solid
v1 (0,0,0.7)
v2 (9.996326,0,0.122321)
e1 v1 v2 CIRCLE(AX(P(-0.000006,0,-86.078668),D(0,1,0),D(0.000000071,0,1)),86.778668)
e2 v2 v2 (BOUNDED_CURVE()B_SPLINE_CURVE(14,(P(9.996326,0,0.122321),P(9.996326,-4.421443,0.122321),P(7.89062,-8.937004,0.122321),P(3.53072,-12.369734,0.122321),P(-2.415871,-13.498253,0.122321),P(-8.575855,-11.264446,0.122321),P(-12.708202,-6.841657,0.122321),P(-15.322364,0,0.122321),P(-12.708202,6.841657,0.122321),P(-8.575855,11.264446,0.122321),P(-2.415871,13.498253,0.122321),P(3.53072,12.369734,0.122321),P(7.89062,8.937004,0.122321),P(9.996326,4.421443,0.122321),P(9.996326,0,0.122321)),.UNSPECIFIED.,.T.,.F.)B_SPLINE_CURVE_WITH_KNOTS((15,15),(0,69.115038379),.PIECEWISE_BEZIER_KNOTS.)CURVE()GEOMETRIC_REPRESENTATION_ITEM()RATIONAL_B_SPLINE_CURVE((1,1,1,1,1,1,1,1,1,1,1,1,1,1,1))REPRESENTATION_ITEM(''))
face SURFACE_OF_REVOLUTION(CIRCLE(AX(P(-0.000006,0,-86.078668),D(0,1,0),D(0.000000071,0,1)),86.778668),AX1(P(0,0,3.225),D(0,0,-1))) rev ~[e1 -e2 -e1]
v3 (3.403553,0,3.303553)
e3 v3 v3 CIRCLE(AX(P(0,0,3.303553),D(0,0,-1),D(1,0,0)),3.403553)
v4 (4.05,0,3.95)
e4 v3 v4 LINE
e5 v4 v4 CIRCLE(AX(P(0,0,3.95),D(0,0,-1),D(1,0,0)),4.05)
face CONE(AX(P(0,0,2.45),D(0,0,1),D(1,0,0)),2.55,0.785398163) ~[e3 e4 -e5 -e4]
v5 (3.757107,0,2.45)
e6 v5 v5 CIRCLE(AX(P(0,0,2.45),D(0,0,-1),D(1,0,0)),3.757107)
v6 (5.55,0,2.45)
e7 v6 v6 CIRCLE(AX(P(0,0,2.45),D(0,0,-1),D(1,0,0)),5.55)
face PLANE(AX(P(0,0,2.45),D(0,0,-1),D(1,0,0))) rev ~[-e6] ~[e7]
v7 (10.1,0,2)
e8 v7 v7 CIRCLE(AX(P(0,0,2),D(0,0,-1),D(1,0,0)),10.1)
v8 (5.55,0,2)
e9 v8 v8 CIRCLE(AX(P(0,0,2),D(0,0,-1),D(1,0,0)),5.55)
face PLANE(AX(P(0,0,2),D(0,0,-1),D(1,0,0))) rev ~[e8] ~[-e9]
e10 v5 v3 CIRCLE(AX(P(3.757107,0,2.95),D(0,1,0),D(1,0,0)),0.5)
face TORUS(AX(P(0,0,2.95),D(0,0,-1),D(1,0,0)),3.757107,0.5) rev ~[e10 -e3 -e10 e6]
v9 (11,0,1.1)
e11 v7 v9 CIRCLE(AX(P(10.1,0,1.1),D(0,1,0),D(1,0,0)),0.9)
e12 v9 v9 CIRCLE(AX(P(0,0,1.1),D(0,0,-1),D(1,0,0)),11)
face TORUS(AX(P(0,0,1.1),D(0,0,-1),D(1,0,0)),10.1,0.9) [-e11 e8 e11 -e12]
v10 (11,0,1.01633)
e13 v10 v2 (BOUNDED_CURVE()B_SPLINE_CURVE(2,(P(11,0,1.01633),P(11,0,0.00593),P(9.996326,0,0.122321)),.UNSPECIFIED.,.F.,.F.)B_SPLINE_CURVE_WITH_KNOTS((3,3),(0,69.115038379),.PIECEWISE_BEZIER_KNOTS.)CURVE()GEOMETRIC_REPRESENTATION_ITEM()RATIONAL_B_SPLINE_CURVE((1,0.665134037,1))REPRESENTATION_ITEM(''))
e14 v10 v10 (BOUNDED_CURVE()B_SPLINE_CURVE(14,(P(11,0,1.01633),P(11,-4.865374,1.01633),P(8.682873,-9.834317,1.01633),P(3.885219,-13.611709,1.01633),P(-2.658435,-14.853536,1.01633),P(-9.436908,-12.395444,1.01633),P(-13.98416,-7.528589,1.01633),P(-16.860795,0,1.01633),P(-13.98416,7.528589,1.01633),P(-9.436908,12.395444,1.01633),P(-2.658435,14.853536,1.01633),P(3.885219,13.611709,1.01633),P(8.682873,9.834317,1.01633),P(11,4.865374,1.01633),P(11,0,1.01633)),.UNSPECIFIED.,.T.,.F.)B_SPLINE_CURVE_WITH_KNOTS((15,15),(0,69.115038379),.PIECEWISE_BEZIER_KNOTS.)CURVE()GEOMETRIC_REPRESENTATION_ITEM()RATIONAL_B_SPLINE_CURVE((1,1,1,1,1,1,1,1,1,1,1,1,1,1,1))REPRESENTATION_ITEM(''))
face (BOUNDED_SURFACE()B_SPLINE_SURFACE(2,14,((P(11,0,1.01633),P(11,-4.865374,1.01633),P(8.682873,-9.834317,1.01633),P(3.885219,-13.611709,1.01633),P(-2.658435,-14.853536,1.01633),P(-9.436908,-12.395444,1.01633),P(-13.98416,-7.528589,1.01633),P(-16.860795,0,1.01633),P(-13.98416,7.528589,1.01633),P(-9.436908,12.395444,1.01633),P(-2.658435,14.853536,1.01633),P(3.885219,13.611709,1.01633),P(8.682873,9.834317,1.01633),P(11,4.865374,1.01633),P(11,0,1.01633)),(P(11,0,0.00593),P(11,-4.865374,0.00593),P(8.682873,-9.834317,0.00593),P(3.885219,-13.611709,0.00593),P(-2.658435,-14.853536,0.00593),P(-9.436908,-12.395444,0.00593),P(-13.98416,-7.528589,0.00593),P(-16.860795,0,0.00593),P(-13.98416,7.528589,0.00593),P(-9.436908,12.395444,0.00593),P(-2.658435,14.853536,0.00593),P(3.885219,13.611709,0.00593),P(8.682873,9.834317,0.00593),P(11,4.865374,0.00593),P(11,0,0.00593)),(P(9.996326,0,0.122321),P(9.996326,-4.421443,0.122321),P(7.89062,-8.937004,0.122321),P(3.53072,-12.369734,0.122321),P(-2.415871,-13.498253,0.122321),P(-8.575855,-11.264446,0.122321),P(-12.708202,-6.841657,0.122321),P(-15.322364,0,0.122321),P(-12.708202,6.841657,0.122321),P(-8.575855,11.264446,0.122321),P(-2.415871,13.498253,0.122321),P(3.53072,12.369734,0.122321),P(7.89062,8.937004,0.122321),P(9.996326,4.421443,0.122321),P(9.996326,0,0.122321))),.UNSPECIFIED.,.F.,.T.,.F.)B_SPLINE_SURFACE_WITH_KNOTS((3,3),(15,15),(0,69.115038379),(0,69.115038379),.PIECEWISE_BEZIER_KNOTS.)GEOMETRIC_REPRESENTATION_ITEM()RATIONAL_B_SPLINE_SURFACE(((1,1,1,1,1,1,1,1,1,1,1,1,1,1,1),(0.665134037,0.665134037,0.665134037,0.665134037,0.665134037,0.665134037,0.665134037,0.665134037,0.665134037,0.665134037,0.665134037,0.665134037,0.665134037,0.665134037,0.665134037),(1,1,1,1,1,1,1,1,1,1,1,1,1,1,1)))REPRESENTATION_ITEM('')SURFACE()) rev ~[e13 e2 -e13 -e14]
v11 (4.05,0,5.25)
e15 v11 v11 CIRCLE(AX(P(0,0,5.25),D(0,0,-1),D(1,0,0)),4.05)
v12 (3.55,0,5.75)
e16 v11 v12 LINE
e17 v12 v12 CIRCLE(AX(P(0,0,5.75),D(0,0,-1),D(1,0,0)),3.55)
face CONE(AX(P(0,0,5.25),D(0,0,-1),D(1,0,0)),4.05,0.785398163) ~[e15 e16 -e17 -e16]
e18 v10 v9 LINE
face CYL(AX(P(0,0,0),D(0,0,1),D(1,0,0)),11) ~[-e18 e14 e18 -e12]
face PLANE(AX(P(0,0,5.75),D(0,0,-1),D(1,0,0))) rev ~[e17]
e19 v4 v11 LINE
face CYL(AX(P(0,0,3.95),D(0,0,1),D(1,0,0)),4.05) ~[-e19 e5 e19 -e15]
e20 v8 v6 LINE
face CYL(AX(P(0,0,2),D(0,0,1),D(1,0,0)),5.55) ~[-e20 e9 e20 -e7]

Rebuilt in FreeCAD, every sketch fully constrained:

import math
import FreeCAD as App
import Part
import Sketcher
Q = App.Units.Quantity


def edges_at(feature, points):
    """Names of the edges that pass closest to the given points."""
    edges = feature.Shape.Edges
    near = lambda p: min(range(len(edges)), key=lambda i: edges[i].distToShape(Part.Vertex(*p))[0])
    return sorted({f"Edge{near(p) + 1}" for p in points})

doc = App.newDocument("Part")
body = doc.addObject("PartDesign::Body", "Body")

sketch1 = body.newObject("Sketcher::SketchObject", "Sketch")
sketch1.AttachmentSupport = (doc.getObject("XZ_Plane"), [""])
sketch1.MapMode = "FlatFace"
sketch1.addGeometry([
    Part.ArcOfCircle(Part.Circle(App.Vector(0, -86.08, 0), App.Vector(0, 0, 1), 86.78), math.radians(82.72), math.radians(90)),
    Part.LineSegment(App.Vector(11, 0, 0), App.Vector(11, 2, 0)),
    Part.LineSegment(App.Vector(11, 2, 0), App.Vector(5.55, 2, 0)),
    Part.LineSegment(App.Vector(5.55, 2, 0), App.Vector(5.55, 2.45, 0)),
    Part.LineSegment(App.Vector(5.55, 2.45, 0), App.Vector(2.55, 2.45, 0)),
    Part.LineSegment(App.Vector(2.55, 2.45, 0), App.Vector(4.05, 3.95, 0)),
    Part.LineSegment(App.Vector(4.05, 3.95, 0), App.Vector(4.05, 5.75, 0)),
    Part.LineSegment(App.Vector(4.05, 5.75, 0), App.Vector(0, 5.75, 0)),
    Part.LineSegment(App.Vector(0, 5.75, 0), App.Vector(0, 0.7, 0)),
], False)
sketch1.addConstraint([
    Sketcher.Constraint("Coincident", 0, 1, 1, 1),
    Sketcher.Constraint("Coincident", 1, 2, 2, 1),
    Sketcher.Constraint("Coincident", 2, 2, 3, 1),
    Sketcher.Constraint("Coincident", 3, 2, 4, 1),
    Sketcher.Constraint("Coincident", 4, 2, 5, 1),
    Sketcher.Constraint("Coincident", 5, 2, 6, 1),
    Sketcher.Constraint("Coincident", 6, 2, 7, 1),
    Sketcher.Constraint("Coincident", 7, 2, 8, 1),
    Sketcher.Constraint("Coincident", 8, 2, 0, 2),
    Sketcher.Constraint("Vertical", 1),
    Sketcher.Constraint("Horizontal", 2),
    Sketcher.Constraint("Vertical", 3),
    Sketcher.Constraint("Horizontal", 4),
    Sketcher.Constraint("Vertical", 6),
    Sketcher.Constraint("Horizontal", 7),
    Sketcher.Constraint("Vertical", 8),
    Sketcher.Constraint("PointOnObject", 0, 1, -1),
    Sketcher.Constraint("PointOnObject", 7, 2, -2),
    Sketcher.Constraint("DistanceX", 4, 2, 4, 1, Q("3 mm")),
    Sketcher.Constraint("DistanceY", 1, 1, 1, 2, Q("2 mm")),
    Sketcher.Constraint("Angle", 5, Q("45 deg")),
    Sketcher.Constraint("DistanceY", 6, 1, 6, 2, Q("1.8 mm")),
    Sketcher.Constraint("DistanceX", -1, 1, 0, 1, Q("11 mm")),
    Sketcher.Constraint("DistanceX", 2, 2, 2, 1, Q("5.45 mm")),
    Sketcher.Constraint("DistanceX", 7, 2, 7, 1, Q("4.05 mm")),
    Sketcher.Constraint("DistanceY", 3, 1, 3, 2, Q("0.45 mm")),
    Sketcher.Constraint("DistanceY", 8, 2, 8, 1, Q("5.05 mm")),
    Sketcher.Constraint("Radius", 0, Q("86.778668 mm")),
])
revolution = body.newObject("PartDesign::Revolution", "Revolution")
revolution.Profile = sketch1
revolution.ReferenceAxis = (sketch1, ["V_Axis"])
revolution.Angle = 360
doc.recompute()

fillet = body.newObject("PartDesign::Fillet", "Fillet")
fillet.Base = (revolution, edges_at(revolution, [(-2.55, 0, 2.45)]))
fillet.Radius = 0.5
doc.recompute()

fillet2 = body.newObject("PartDesign::Fillet", "Fillet001")
fillet2.Base = (fillet, edges_at(fillet, [(-11, 0, 0), (-11, 0, 2)]))
fillet2.Radius = 0.9
doc.recompute()

chamfer = body.newObject("PartDesign::Chamfer", "Chamfer")
chamfer.Base = (fillet2, edges_at(fillet2, [(-4.05, 0, 5.75)]))
chamfer.Size = 0.5

doc.recompute()
